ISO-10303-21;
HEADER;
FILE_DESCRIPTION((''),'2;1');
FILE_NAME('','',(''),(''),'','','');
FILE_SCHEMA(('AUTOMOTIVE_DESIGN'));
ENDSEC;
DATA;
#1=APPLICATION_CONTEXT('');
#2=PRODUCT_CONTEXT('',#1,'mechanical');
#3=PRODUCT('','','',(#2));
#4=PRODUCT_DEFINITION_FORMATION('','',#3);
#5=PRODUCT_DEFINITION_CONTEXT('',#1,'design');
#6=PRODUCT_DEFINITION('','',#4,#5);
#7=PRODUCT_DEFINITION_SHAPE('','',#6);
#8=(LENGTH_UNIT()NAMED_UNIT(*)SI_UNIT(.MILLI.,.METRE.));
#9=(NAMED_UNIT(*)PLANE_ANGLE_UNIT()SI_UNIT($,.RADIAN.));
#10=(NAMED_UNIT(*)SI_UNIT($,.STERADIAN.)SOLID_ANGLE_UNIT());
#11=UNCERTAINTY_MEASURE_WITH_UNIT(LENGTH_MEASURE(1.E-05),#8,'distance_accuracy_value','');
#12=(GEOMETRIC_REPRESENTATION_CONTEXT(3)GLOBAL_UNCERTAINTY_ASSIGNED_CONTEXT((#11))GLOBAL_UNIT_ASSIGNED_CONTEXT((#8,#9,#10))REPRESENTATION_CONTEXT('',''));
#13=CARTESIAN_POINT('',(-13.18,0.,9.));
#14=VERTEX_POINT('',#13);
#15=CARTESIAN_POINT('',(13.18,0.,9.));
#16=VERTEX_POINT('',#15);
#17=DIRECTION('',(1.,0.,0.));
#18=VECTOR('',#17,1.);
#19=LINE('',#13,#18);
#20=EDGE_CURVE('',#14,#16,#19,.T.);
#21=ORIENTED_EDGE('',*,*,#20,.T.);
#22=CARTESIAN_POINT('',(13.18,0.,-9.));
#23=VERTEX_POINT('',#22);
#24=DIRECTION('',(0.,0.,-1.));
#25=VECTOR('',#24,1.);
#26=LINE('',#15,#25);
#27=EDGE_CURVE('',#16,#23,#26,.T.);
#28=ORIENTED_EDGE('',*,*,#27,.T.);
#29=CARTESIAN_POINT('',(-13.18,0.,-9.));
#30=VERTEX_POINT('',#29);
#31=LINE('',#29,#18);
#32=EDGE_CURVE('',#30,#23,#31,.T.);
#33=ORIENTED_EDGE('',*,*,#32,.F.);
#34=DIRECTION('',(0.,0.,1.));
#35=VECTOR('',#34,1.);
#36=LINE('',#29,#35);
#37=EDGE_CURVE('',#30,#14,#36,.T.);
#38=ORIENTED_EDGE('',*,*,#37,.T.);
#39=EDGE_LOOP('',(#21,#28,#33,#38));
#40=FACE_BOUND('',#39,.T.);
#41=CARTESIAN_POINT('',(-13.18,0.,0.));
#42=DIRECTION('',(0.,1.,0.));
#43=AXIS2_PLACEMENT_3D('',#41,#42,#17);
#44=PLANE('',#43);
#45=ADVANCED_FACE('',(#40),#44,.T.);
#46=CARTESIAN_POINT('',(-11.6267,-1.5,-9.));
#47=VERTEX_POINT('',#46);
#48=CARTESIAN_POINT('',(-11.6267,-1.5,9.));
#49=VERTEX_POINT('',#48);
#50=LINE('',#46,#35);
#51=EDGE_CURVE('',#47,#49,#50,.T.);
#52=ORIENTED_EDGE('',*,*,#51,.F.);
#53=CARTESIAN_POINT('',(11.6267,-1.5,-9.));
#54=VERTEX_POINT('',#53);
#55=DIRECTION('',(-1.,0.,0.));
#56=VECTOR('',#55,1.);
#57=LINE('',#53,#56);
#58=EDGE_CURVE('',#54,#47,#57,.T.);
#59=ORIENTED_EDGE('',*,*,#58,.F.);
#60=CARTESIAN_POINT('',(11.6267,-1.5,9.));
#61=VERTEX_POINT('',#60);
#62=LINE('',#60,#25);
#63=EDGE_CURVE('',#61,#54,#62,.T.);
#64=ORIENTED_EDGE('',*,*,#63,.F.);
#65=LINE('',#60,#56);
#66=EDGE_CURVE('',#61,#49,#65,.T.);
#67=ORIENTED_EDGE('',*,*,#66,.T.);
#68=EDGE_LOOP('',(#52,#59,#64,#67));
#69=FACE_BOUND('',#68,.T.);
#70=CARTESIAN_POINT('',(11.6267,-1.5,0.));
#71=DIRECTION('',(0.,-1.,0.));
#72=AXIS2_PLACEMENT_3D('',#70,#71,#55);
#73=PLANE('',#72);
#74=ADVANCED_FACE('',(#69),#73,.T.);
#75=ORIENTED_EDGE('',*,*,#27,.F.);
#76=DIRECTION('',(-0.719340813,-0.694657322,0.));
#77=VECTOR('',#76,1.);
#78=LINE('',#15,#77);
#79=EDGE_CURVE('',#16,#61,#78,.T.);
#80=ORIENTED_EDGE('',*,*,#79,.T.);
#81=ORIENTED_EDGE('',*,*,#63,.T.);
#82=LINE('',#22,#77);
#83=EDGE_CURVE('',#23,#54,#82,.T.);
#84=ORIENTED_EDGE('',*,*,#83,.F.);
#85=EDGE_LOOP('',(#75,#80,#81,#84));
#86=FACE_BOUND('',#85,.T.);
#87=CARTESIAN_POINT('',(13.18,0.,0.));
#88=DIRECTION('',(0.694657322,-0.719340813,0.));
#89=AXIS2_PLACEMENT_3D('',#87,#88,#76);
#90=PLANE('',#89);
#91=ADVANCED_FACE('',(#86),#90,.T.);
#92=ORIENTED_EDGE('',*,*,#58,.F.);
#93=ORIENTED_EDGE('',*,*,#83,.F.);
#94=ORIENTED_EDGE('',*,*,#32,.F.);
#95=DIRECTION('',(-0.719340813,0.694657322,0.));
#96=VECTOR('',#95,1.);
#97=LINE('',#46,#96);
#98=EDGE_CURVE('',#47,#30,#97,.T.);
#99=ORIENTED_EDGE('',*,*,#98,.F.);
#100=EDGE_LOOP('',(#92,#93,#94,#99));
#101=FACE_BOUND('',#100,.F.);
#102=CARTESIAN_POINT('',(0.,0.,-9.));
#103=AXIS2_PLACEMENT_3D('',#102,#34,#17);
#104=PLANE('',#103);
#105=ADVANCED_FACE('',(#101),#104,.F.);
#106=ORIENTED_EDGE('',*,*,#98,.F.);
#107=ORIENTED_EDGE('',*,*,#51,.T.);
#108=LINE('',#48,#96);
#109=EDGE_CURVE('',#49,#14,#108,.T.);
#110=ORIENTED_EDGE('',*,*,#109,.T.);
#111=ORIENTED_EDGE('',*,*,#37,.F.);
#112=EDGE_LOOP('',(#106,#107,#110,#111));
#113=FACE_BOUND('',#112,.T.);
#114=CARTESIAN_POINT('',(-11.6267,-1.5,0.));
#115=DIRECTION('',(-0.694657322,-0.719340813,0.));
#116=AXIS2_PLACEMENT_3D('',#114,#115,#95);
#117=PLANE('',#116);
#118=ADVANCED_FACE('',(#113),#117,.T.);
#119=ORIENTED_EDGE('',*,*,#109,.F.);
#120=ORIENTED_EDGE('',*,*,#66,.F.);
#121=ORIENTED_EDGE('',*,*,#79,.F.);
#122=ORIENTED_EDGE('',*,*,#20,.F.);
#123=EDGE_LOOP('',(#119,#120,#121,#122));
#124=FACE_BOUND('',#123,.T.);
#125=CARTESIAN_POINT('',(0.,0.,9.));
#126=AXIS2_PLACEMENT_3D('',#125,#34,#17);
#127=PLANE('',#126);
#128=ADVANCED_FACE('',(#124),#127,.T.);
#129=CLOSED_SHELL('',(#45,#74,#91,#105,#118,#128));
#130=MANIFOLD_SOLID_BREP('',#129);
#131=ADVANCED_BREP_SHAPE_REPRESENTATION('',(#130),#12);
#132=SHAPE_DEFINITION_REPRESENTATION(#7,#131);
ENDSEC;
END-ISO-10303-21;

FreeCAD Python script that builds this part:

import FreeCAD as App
import Part
import Sketcher
Q = App.Units.Quantity


def add_polygon(sketch, points):
    """Adds a closed chain of lines whose ends are joined by coincident constraints."""
    first, n = sketch.GeometryCount, len(points)
    for a, b in zip(points, points[1:] + points[:1]):
        sketch.addGeometry(Part.LineSegment(App.Vector(*a, 0), App.Vector(*b, 0)), False)
    for i in range(n):
        sketch.addConstraint(Sketcher.Constraint("Coincident", first + i, 2, first + (i + 1) % n, 1))

doc = App.newDocument("Part")
body = doc.addObject("PartDesign::Body", "Body")

# Sketch on XY plane
sketch1 = body.newObject("Sketcher::SketchObject", "Sketch")
sketch1.AttachmentSupport = (doc.getObject("XY_Plane"), [""])
sketch1.MapMode = "FlatFace"
add_polygon(sketch1, [(13.2, 0), (-13.2, 0), (-11.6, -1.5), (11.6, -1.5)])  # lines 0-3
sketch1.addConstraint(Sketcher.Constraint("Horizontal", 0))
sketch1.addConstraint(Sketcher.Constraint("Horizontal", 2))
sketch1.addConstraint(Sketcher.Constraint("Symmetric", 0, 2, 3, 2, -1, 1))
sketch1.addConstraint(Sketcher.Constraint("Equal", 1, 3))
sketch1.addConstraint(Sketcher.Constraint("DistanceX", 0, 2, 0, 1, Q("26.36 mm")))
sketch1.addConstraint(Sketcher.Constraint("DistanceY", 1, 2, -1, 1, Q("1.5 mm")))
sketch1.addConstraint(Sketcher.Constraint("Angle", 1, Q("-44 deg")))
pad1 = body.newObject("PartDesign::Pad", "Pad")
pad1.Profile = sketch1
pad1.Length = 18
pad1.Midplane = True

doc.recompute()
